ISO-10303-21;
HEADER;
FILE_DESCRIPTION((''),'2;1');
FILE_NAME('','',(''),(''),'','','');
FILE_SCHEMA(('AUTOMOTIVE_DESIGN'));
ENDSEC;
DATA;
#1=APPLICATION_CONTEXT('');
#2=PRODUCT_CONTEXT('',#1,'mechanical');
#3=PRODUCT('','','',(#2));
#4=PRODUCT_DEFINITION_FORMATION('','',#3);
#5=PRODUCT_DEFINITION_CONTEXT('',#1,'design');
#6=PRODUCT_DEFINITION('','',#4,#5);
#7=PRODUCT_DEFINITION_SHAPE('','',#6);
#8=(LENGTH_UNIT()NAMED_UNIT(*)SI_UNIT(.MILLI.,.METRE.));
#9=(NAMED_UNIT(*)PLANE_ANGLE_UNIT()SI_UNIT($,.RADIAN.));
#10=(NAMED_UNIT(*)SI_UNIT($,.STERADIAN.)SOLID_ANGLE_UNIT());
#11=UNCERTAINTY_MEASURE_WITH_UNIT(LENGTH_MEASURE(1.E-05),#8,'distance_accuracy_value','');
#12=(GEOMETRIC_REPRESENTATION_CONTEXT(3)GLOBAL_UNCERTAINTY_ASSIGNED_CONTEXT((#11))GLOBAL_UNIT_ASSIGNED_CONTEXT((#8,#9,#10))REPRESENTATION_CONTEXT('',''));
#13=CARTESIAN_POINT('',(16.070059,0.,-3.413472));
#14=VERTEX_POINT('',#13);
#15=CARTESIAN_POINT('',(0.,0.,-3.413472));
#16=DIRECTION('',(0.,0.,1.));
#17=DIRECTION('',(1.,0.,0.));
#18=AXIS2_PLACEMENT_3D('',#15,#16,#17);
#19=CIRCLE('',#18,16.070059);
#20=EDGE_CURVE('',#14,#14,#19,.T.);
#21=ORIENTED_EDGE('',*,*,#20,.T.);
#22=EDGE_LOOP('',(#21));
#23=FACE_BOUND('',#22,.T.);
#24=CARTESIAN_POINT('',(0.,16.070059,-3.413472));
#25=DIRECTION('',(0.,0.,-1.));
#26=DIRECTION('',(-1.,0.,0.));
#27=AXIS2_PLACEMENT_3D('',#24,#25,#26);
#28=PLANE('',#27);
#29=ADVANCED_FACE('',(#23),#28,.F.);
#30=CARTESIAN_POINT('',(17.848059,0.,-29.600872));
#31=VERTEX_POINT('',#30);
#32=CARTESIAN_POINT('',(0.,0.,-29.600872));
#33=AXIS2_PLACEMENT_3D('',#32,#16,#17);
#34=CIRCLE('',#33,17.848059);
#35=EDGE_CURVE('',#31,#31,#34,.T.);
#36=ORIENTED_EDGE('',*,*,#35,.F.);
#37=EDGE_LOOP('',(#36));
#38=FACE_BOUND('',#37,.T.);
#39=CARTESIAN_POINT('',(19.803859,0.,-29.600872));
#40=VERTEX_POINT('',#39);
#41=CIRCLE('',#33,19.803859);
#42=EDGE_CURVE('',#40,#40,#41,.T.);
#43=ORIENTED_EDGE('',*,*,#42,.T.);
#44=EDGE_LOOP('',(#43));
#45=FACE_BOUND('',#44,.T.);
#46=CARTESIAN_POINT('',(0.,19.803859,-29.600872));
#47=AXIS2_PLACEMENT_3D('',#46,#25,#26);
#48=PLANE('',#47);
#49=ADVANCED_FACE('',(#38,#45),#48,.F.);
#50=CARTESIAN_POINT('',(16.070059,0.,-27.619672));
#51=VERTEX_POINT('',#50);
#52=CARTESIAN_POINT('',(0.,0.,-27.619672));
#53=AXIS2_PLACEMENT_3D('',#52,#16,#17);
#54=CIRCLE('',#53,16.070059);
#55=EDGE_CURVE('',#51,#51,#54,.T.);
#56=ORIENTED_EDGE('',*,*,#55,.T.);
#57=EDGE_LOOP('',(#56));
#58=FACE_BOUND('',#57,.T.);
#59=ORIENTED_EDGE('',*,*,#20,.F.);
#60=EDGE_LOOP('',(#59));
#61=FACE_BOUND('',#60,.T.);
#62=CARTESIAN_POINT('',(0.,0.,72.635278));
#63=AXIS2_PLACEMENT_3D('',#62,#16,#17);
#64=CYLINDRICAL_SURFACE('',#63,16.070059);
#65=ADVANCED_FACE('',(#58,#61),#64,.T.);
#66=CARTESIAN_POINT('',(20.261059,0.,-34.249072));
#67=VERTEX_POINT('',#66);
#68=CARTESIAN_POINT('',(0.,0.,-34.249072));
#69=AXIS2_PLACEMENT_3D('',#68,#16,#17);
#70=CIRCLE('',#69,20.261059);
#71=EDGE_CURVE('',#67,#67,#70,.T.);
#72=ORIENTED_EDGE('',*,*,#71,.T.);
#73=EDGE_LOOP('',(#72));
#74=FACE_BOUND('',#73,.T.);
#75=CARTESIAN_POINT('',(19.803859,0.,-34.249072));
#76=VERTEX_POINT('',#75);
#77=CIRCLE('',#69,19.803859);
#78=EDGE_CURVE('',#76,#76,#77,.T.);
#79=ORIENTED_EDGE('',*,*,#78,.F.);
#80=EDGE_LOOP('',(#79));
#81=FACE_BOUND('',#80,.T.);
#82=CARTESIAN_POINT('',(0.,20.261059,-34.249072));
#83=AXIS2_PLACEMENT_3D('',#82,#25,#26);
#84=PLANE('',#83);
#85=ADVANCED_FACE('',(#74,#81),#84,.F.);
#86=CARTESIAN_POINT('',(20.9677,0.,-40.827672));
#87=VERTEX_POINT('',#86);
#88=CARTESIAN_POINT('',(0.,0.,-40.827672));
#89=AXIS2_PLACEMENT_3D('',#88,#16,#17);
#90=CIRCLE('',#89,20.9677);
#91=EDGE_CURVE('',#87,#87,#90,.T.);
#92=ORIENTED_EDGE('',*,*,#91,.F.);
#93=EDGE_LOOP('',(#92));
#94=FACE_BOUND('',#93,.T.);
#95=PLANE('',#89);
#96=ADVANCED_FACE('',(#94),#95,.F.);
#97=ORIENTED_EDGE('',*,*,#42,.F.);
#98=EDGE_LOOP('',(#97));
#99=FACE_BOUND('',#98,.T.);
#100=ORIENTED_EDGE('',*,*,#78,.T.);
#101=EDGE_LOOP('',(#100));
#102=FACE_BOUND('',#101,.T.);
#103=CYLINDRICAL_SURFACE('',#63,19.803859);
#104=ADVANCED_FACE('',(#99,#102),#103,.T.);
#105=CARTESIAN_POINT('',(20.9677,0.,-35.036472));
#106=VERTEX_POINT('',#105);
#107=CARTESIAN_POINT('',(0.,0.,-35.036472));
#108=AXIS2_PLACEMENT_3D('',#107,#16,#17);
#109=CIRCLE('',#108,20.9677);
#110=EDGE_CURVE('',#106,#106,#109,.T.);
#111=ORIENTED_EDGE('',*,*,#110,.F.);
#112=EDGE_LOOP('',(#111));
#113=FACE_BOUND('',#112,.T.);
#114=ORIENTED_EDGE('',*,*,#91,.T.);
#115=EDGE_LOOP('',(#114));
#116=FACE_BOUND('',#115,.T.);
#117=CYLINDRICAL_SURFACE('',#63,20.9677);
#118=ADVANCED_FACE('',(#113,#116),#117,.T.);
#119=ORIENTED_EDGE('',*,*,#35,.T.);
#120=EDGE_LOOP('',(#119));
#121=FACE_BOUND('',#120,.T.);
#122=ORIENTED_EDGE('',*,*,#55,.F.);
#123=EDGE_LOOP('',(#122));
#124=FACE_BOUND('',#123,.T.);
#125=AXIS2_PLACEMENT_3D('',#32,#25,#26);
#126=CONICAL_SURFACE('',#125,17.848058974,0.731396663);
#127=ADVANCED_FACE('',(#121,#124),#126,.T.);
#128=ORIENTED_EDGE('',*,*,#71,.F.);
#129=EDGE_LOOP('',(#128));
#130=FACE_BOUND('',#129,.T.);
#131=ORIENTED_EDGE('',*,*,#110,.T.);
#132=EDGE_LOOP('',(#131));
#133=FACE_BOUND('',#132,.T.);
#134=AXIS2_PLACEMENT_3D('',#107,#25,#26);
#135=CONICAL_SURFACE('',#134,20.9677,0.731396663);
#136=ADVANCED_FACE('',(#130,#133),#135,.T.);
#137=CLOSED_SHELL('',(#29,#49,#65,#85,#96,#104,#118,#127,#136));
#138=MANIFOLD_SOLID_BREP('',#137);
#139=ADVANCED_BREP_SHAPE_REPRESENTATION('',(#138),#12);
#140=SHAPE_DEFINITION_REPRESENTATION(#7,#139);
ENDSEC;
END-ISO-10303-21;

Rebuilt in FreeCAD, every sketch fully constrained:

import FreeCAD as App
import Part
import Sketcher

V = App.Vector
Q = App.Units.Quantity

doc = App.newDocument("Part")
body = doc.addObject("PartDesign::Body", "Body")

sketch1 = body.newObject("Sketcher::SketchObject", "Sketch")
sketch1.AttachmentSupport = (doc.getObject("YZ_Plane"), [""])
sketch1.MapMode = "FlatFace"
sketch1.addGeometry(Part.LineSegment(V(0, -40.827672, 0), V(20.9677, -40.827672, 0)), False)
sketch1.addGeometry(Part.LineSegment(V(20.9677, -40.827672, 0), V(20.9677, -35.036472, 0)), False)
sketch1.addGeometry(Part.LineSegment(V(20.9677, -35.036472, 0), V(20.261059, -34.249072, 0)), False)
sketch1.addGeometry(Part.LineSegment(V(20.261059, -34.249072, 0), V(19.803859, -34.249072, 0)), False)
sketch1.addGeometry(Part.LineSegment(V(19.803859, -34.249072, 0), V(19.803859, -29.600872, 0)), False)
sketch1.addGeometry(Part.LineSegment(V(19.803859, -29.600872, 0), V(17.848059, -29.600872, 0)), False)
sketch1.addGeometry(Part.LineSegment(V(17.848059, -29.600872, 0), V(16.070059, -27.619672, 0)), False)
sketch1.addGeometry(Part.LineSegment(V(16.070059, -27.619672, 0), V(16.070059, -3.413472, 0)), False)
sketch1.addGeometry(Part.LineSegment(V(16.070059, -3.413472, 0), V(0, -3.413472, 0)), False)
sketch1.addGeometry(Part.LineSegment(V(0, -3.413472, 0), V(0, -40.827672, 0)), False)
sketch1.addConstraint(Sketcher.Constraint("Coincident", 0, 2, 1, 1))
sketch1.addConstraint(Sketcher.Constraint("Coincident", 1, 2, 2, 1))
sketch1.addConstraint(Sketcher.Constraint("Coincident", 2, 2, 3, 1))
sketch1.addConstraint(Sketcher.Constraint("Coincident", 3, 2, 4, 1))
sketch1.addConstraint(Sketcher.Constraint("Coincident", 4, 2, 5, 1))
sketch1.addConstraint(Sketcher.Constraint("Coincident", 5, 2, 6, 1))
sketch1.addConstraint(Sketcher.Constraint("Coincident", 6, 2, 7, 1))
sketch1.addConstraint(Sketcher.Constraint("Coincident", 7, 2, 8, 1))
sketch1.addConstraint(Sketcher.Constraint("Coincident", 8, 2, 9, 1))
sketch1.addConstraint(Sketcher.Constraint("Coincident", 9, 2, 0, 1))
sketch1.addConstraint(Sketcher.Constraint("Horizontal", 0))
sketch1.addConstraint(Sketcher.Constraint("Vertical", 1))
sketch1.addConstraint(Sketcher.Constraint("Horizontal", 3))
sketch1.addConstraint(Sketcher.Constraint("Vertical", 4))
sketch1.addConstraint(Sketcher.Constraint("Horizontal", 5))
sketch1.addConstraint(Sketcher.Constraint("Vertical", 7))
sketch1.addConstraint(Sketcher.Constraint("Horizontal", 8))
sketch1.addConstraint(Sketcher.Constraint("Vertical", 9))
sketch1.addConstraint(Sketcher.Constraint("PointOnObject", 8, 2, -2))
sketch1.addConstraint(Sketcher.Constraint("Parallel", 2, 6))
sketch1.addConstraint(Sketcher.Constraint("DistanceX", 3, 2, 3, 1, Q("0.018 in")))
sketch1.addConstraint(Sketcher.Constraint("DistanceX", 5, 2, 5, 1, Q("0.077 in")))
sketch1.addConstraint(Sketcher.Constraint("DistanceY", 1, 1, 1, 2, Q("0.228 in")))
sketch1.addConstraint(Sketcher.Constraint("DistanceY", 4, 1, 4, 2, Q("0.183 in")))
sketch1.addConstraint(Sketcher.Constraint("DistanceY", 7, 1, 7, 2, Q("0.953 in")))
sketch1.addConstraint(Sketcher.Constraint("DistanceY", 9, 2, 9, 1, Q("1.473 in")))
sketch1.addConstraint(Sketcher.Constraint("DistanceX", 6, 2, 5, 2, Q("0.07 in")))
sketch1.addConstraint(Sketcher.Constraint("DistanceX", 0, 1, 0, 2, Q("0.8255 in")))
sketch1.addConstraint(Sketcher.Constraint("DistanceY", 1, 2, 2, 2, Q("0.031 in")))
sketch1.addConstraint(Sketcher.Constraint("DistanceY", 0, 2, -1, 1, Q("40.827672 mm")))
revolution = body.newObject("PartDesign::Revolution", "Revolution")
revolution.Profile = sketch1
revolution.ReferenceAxis = (sketch1, ["V_Axis"])
revolution.Angle = 360

doc.recompute()
